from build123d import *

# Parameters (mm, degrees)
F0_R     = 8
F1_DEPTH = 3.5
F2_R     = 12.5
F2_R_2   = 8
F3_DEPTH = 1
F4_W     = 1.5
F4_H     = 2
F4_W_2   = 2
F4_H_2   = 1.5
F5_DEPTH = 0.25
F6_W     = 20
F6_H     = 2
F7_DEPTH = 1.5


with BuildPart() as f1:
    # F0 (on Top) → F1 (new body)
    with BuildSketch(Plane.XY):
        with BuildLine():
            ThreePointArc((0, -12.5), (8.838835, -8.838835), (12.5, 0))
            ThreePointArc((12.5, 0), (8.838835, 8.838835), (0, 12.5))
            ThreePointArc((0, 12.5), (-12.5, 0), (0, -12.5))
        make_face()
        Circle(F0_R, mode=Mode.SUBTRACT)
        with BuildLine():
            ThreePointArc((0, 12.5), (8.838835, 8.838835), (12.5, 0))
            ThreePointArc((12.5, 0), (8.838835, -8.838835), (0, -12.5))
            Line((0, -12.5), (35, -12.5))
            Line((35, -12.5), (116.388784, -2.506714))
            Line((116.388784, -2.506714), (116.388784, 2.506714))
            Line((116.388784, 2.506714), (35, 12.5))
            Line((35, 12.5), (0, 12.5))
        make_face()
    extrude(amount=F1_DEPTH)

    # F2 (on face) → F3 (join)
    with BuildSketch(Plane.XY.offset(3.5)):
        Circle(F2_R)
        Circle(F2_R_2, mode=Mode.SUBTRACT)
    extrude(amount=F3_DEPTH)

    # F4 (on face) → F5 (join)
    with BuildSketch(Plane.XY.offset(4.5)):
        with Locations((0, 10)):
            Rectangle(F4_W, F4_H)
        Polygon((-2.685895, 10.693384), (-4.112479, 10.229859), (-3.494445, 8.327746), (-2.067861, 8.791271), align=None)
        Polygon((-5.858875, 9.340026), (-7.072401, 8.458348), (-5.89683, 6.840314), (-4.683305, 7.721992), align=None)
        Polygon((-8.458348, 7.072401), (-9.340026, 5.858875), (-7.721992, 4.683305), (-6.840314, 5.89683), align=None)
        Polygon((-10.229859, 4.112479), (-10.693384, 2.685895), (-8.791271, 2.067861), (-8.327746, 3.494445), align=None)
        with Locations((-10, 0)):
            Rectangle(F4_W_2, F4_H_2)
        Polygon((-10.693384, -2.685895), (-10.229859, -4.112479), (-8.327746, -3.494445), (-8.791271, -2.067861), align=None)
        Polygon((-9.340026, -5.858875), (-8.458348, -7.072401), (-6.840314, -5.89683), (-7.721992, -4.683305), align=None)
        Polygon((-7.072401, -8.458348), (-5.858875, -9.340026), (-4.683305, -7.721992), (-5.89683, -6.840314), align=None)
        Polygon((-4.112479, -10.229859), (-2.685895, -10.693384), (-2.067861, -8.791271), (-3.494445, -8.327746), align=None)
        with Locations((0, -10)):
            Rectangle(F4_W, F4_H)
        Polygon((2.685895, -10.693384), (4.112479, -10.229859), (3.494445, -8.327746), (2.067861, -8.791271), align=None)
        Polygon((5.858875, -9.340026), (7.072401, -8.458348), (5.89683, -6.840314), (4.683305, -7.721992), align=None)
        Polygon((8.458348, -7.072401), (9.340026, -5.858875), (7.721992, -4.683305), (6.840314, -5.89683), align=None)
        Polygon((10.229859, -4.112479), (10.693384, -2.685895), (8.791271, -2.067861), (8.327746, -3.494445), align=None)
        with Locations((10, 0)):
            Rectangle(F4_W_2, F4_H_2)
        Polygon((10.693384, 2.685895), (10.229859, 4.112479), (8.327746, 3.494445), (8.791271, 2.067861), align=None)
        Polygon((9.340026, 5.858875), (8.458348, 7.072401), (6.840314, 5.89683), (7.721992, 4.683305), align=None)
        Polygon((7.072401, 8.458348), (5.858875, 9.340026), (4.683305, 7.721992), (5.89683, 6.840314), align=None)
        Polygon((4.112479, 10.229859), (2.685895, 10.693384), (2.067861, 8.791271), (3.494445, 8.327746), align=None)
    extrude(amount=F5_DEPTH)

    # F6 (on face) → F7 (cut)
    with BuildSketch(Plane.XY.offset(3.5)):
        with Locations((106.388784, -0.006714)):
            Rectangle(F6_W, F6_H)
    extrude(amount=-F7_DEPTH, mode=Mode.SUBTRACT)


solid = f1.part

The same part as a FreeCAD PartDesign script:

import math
import FreeCAD as App
import Part
import Sketcher
from FreeCAD import Vector
Q = App.Units.Quantity

doc = App.newDocument("Part")
body = doc.addObject("PartDesign::Body", "Body")

# Sketch on XY plane
sketch1 = doc.addObject("Sketcher::SketchObject", "Sketch")
body.addObject(sketch1)
sketch1.AttachmentSupport = (doc.XY_Plane, [""])
sketch1.MapMode = "FlatFace"
sketch1.addGeometry([
    Part.ArcOfCircle(Part.Circle(Vector(0, 0, 0), Vector(0, 0, 1), 12.5), math.radians(90), math.radians(270)),  # 0
    Part.LineSegment(Vector(0, -12.5, 0), Vector(35, -12.5, 0)),  # 1
    Part.LineSegment(Vector(35, -12.5, 0), Vector(116.388784, -2.506714, 0)),  # 2
    Part.LineSegment(Vector(116.388784, -2.506714, 0), Vector(116.388784, 2.506714, 0)),  # 3
    Part.LineSegment(Vector(116.388784, 2.506714, 0), Vector(35, 12.5, 0)),  # 4
    Part.LineSegment(Vector(35, 12.5, 0), Vector(0, 12.5, 0)),  # 5
    Part.Circle(Vector(0, 0, 0), Vector(0, 0, 1), 8),  # 6
], False)
sketch1.addConstraint([
    Sketcher.Constraint("Tangent", 0, 2, 1, 1),
    Sketcher.Constraint("Coincident", 1, 2, 2, 1),
    Sketcher.Constraint("Coincident", 2, 2, 3, 1),
    Sketcher.Constraint("Coincident", 3, 2, 4, 1),
    Sketcher.Constraint("Coincident", 4, 2, 5, 1),
    Sketcher.Constraint("Tangent", 5, 2, 0, 1),
    Sketcher.Constraint("Horizontal", 1),
    Sketcher.Constraint("Vertical", 3),
    Sketcher.Constraint("Horizontal", 5),
    Sketcher.Constraint("Coincident", 0, 3, -1, 1),
    Sketcher.Constraint("Coincident", 6, 3, -1, 1),
    Sketcher.Constraint("Vertical", 1, 2, 4, 2),
    Sketcher.Constraint("Equal", 2, 4),
    Sketcher.Constraint("Diameter", 6, Q("16 mm")),
    Sketcher.Constraint("Radius", 0, Q("12.5 mm")),
    Sketcher.Constraint("DistanceX", 1, 1, 1, 2, Q("35 mm")),
    Sketcher.Constraint("Angle", 2, Q("7 deg")),
    Sketcher.Constraint("Distance", 2, Q("82 mm")),
])
pad1 = doc.addObject("PartDesign::Pad", "Pad")
body.addObject(pad1)
pad1.Profile = sketch1
pad1.Length = 3.5

# Sketch on XY plane
sketch2 = doc.addObject("Sketcher::SketchObject", "Sketch001")
body.addObject(sketch2)
sketch2.AttachmentSupport = (doc.XY_Plane, [""])
sketch2.MapMode = "FlatFace"
sketch2.AttachmentOffset = App.Placement(Vector(0, 0, 3.5), App.Rotation())
sketch2.addGeometry([
    Part.Circle(Vector(0, 0, 0), Vector(0, 0, 1), 12.5),
    Part.Circle(Vector(0, 0, 0), Vector(0, 0, 1), 8),
], False)
sketch2.addConstraint([
    Sketcher.Constraint("Coincident", 0, 3, -1, 1),
    Sketcher.Constraint("Coincident", 1, 3, -1, 1),
    Sketcher.Constraint("Diameter", 0, Q("25 mm")),
    Sketcher.Constraint("Diameter", 1, Q("16 mm")),
])
pad2 = doc.addObject("PartDesign::Pad", "Pad001")
body.addObject(pad2)
pad2.Profile = sketch2
pad2.Length = 1

# Sketch on XY plane
sketch3 = doc.addObject("Sketcher::SketchObject", "Sketch002")
body.addObject(sketch3)
sketch3.AttachmentSupport = (doc.XY_Plane, [""])
sketch3.MapMode = "FlatFace"
sketch3.AttachmentOffset = App.Placement(Vector(0, 0, 4.5), App.Rotation())
sketch3.addGeometry([
    Part.LineSegment(Vector(-0.75, 11, 0), Vector(-0.75, 9, 0)),  # 0
    Part.LineSegment(Vector(-0.75, 9, 0), Vector(0.75, 9, 0)),  # 1
    Part.LineSegment(Vector(0.75, 9, 0), Vector(0.75, 11, 0)),  # 2
    Part.LineSegment(Vector(0.75, 11, 0), Vector(-0.75, 11, 0)),  # 3
    Part.LineSegment(Vector(-2.685895, 10.693384, 0), Vector(-4.112479, 10.229859, 0)),  # 4
    Part.LineSegment(Vector(-4.112479, 10.229859, 0), Vector(-3.494445, 8.327746, 0)),  # 5
    Part.LineSegment(Vector(-3.494445, 8.327746, 0), Vector(-2.067861, 8.791271, 0)),  # 6
    Part.LineSegment(Vector(-2.067861, 8.791271, 0), Vector(-2.685895, 10.693384, 0)),  # 7
    Part.LineSegment(Vector(-5.858875, 9.340026, 0), Vector(-7.072401, 8.458348, 0)),  # 8
    Part.LineSegment(Vector(-7.072401, 8.458348, 0), Vector(-5.89683, 6.840314, 0)),  # 9
    Part.LineSegment(Vector(-5.89683, 6.840314, 0), Vector(-4.683305, 7.721992, 0)),  # 10
    Part.LineSegment(Vector(-4.683305, 7.721992, 0), Vector(-5.858875, 9.340026, 0)),  # 11
    Part.LineSegment(Vector(-8.458348, 7.072401, 0), Vector(-9.340026, 5.858875, 0)),  # 12
    Part.LineSegment(Vector(-9.340026, 5.858875, 0), Vector(-7.721992, 4.683305, 0)),  # 13
    Part.LineSegment(Vector(-7.721992, 4.683305, 0), Vector(-6.840314, 5.89683, 0)),  # 14
    Part.LineSegment(Vector(-6.840314, 5.89683, 0), Vector(-8.458348, 7.072401, 0)),  # 15
    Part.LineSegment(Vector(-10.229859, 4.112479, 0), Vector(-10.693384, 2.685895, 0)),  # 16
    Part.LineSegment(Vector(-10.693384, 2.685895, 0), Vector(-8.791271, 2.067861, 0)),  # 17
    Part.LineSegment(Vector(-8.791271, 2.067861, 0), Vector(-8.327746, 3.494445, 0)),  # 18
    Part.LineSegment(Vector(-8.327746, 3.494445, 0), Vector(-10.229859, 4.112479, 0)),  # 19
    Part.LineSegment(Vector(-11, 0.75, 0), Vector(-11, -0.75, 0)),  # 20
    Part.LineSegment(Vector(-11, -0.75, 0), Vector(-9, -0.75, 0)),  # 21
    Part.LineSegment(Vector(-9, -0.75, 0), Vector(-9, 0.75, 0)),  # 22
    Part.LineSegment(Vector(-9, 0.75, 0), Vector(-11, 0.75, 0)),  # 23
    Part.LineSegment(Vector(-10.693384, -2.685895, 0), Vector(-10.229859, -4.112479, 0)),  # 24
    Part.LineSegment(Vector(-10.229859, -4.112479, 0), Vector(-8.327746, -3.494445, 0)),  # 25
    Part.LineSegment(Vector(-8.327746, -3.494445, 0), Vector(-8.791271, -2.067861, 0)),  # 26
    Part.LineSegment(Vector(-8.791271, -2.067861, 0), Vector(-10.693384, -2.685895, 0)),  # 27
    Part.LineSegment(Vector(-9.340026, -5.858875, 0), Vector(-8.458348, -7.072401, 0)),  # 28
    Part.LineSegment(Vector(-8.458348, -7.072401, 0), Vector(-6.840314, -5.89683, 0)),  # 29
    Part.LineSegment(Vector(-6.840314, -5.89683, 0), Vector(-7.721992, -4.683305, 0)),  # 30
    Part.LineSegment(Vector(-7.721992, -4.683305, 0), Vector(-9.340026, -5.858875, 0)),  # 31
    Part.LineSegment(Vector(-7.072401, -8.458348, 0), Vector(-5.858875, -9.340026, 0)),  # 32
    Part.LineSegment(Vector(-5.858875, -9.340026, 0), Vector(-4.683305, -7.721992, 0)),  # 33
    Part.LineSegment(Vector(-4.683305, -7.721992, 0), Vector(-5.89683, -6.840314, 0)),  # 34
    Part.LineSegment(Vector(-5.89683, -6.840314, 0), Vector(-7.072401, -8.458348, 0)),  # 35
    Part.LineSegment(Vector(-4.112479, -10.229859, 0), Vector(-2.685895, -10.693384, 0)),  # 36
    Part.LineSegment(Vector(-2.685895, -10.693384, 0), Vector(-2.067861, -8.791271, 0)),  # 37
    Part.LineSegment(Vector(-2.067861, -8.791271, 0), Vector(-3.494445, -8.327746, 0)),  # 38
    Part.LineSegment(Vector(-3.494445, -8.327746, 0), Vector(-4.112479, -10.229859, 0)),  # 39
    Part.LineSegment(Vector(-0.75, -9, 0), Vector(-0.75, -11, 0)),  # 40
    Part.LineSegment(Vector(-0.75, -11, 0), Vector(0.75, -11, 0)),  # 41
    Part.LineSegment(Vector(0.75, -11, 0), Vector(0.75, -9, 0)),  # 42
    Part.LineSegment(Vector(0.75, -9, 0), Vector(-0.75, -9, 0)),  # 43
    Part.LineSegment(Vector(2.685895, -10.693384, 0), Vector(4.112479, -10.229859, 0)),  # 44
    Part.LineSegment(Vector(4.112479, -10.229859, 0), Vector(3.494445, -8.327746, 0)),  # 45
    Part.LineSegment(Vector(3.494445, -8.327746, 0), Vector(2.067861, -8.791271, 0)),  # 46
    Part.LineSegment(Vector(2.067861, -8.791271, 0), Vector(2.685895, -10.693384, 0)),  # 47
    Part.LineSegment(Vector(5.858875, -9.340026, 0), Vector(7.072401, -8.458348, 0)),  # 48
    Part.LineSegment(Vector(7.072401, -8.458348, 0), Vector(5.89683, -6.840314, 0)),  # 49
    Part.LineSegment(Vector(5.89683, -6.840314, 0), Vector(4.683305, -7.721992, 0)),  # 50
    Part.LineSegment(Vector(4.683305, -7.721992, 0), Vector(5.858875, -9.340026, 0)),  # 51
    Part.LineSegment(Vector(8.458348, -7.072401, 0), Vector(9.340026, -5.858875, 0)),  # 52
    Part.LineSegment(Vector(9.340026, -5.858875, 0), Vector(7.721992, -4.683305, 0)),  # 53
    Part.LineSegment(Vector(7.721992, -4.683305, 0), Vector(6.840314, -5.89683, 0)),  # 54
    Part.LineSegment(Vector(6.840314, -5.89683, 0), Vector(8.458348, -7.072401, 0)),  # 55
    Part.LineSegment(Vector(10.229859, -4.112479, 0), Vector(10.693384, -2.685895, 0)),  # 56
    Part.LineSegment(Vector(10.693384, -2.685895, 0), Vector(8.791271, -2.067861, 0)),  # 57
    Part.LineSegment(Vector(8.791271, -2.067861, 0), Vector(8.327746, -3.494445, 0)),  # 58
    Part.LineSegment(Vector(8.327746, -3.494445, 0), Vector(10.229859, -4.112479, 0)),  # 59
    Part.LineSegment(Vector(9, 0.75, 0), Vector(9, -0.75, 0)),  # 60
    Part.LineSegment(Vector(9, -0.75, 0), Vector(11, -0.75, 0)),  # 61
    Part.LineSegment(Vector(11, -0.75, 0), Vector(11, 0.75, 0)),  # 62
    Part.LineSegment(Vector(11, 0.75, 0), Vector(9, 0.75, 0)),  # 63
    Part.LineSegment(Vector(10.693384, 2.685895, 0), Vector(10.229859, 4.112479, 0)),  # 64
    Part.LineSegment(Vector(10.229859, 4.112479, 0), Vector(8.327746, 3.494445, 0)),  # 65
    Part.LineSegment(Vector(8.327746, 3.494445, 0), Vector(8.791271, 2.067861, 0)),  # 66
    Part.LineSegment(Vector(8.791271, 2.067861, 0), Vector(10.693384, 2.685895, 0)),  # 67
    Part.LineSegment(Vector(9.340026, 5.858875, 0), Vector(8.458348, 7.072401, 0)),  # 68
    Part.LineSegment(Vector(8.458348, 7.072401, 0), Vector(6.840314, 5.89683, 0)),  # 69
    Part.LineSegment(Vector(6.840314, 5.89683, 0), Vector(7.721992, 4.683305, 0)),  # 70
    Part.LineSegment(Vector(7.721992, 4.683305, 0), Vector(9.340026, 5.858875, 0)),  # 71
    Part.LineSegment(Vector(7.072401, 8.458348, 0), Vector(5.858875, 9.340026, 0)),  # 72
    Part.LineSegment(Vector(5.858875, 9.340026, 0), Vector(4.683305, 7.721992, 0)),  # 73
    Part.LineSegment(Vector(4.683305, 7.721992, 0), Vector(5.89683, 6.840314, 0)),  # 74
    Part.LineSegment(Vector(5.89683, 6.840314, 0), Vector(7.072401, 8.458348, 0)),  # 75
    Part.LineSegment(Vector(4.112479, 10.229859, 0), Vector(2.685895, 10.693384, 0)),  # 76
    Part.LineSegment(Vector(2.685895, 10.693384, 0), Vector(2.067861, 8.791271, 0)),  # 77
    Part.LineSegment(Vector(2.067861, 8.791271, 0), Vector(3.494445, 8.327746, 0)),  # 78
    Part.LineSegment(Vector(3.494445, 8.327746, 0), Vector(4.112479, 10.229859, 0)),  # 79
], False)
sketch3.addConstraint([
    Sketcher.Constraint("Coincident", 0, 2, 1, 1),
    Sketcher.Constraint("Coincident", 1, 2, 2, 1),
    Sketcher.Constraint("Coincident", 2, 2, 3, 1),
    Sketcher.Constraint("Coincident", 3, 2, 0, 1),
    Sketcher.Constraint("Coincident", 4, 2, 5, 1),
    Sketcher.Constraint("Coincident", 5, 2, 6, 1),
    Sketcher.Constraint("Coincident", 6, 2, 7, 1),
    Sketcher.Constraint("Coincident", 7, 2, 4, 1),
    Sketcher.Constraint("Coincident", 8, 2, 9, 1),
    Sketcher.Constraint("Coincident", 9, 2, 10, 1),
    Sketcher.Constraint("Coincident", 10, 2, 11, 1),
    Sketcher.Constraint("Coincident", 11, 2, 8, 1),
    Sketcher.Constraint("Coincident", 12, 2, 13, 1),
    Sketcher.Constraint("Coincident", 13, 2, 14, 1),
    Sketcher.Constraint("Coincident", 14, 2, 15, 1),
    Sketcher.Constraint("Coincident", 15, 2, 12, 1),
    Sketcher.Constraint("Coincident", 16, 2, 17, 1),
    Sketcher.Constraint("Coincident", 17, 2, 18, 1),
    Sketcher.Constraint("Coincident", 18, 2, 19, 1),
    Sketcher.Constraint("Coincident", 19, 2, 16, 1),
    Sketcher.Constraint("Coincident", 20, 2, 21, 1),
    Sketcher.Constraint("Coincident", 21, 2, 22, 1),
    Sketcher.Constraint("Coincident", 22, 2, 23, 1),
    Sketcher.Constraint("Coincident", 23, 2, 20, 1),
    Sketcher.Constraint("Coincident", 24, 2, 25, 1),
    Sketcher.Constraint("Coincident", 25, 2, 26, 1),
    Sketcher.Constraint("Coincident", 26, 2, 27, 1),
    Sketcher.Constraint("Coincident", 27, 2, 24, 1),
    Sketcher.Constraint("Coincident", 28, 2, 29, 1),
    Sketcher.Constraint("Coincident", 29, 2, 30, 1),
    Sketcher.Constraint("Coincident", 30, 2, 31, 1),
    Sketcher.Constraint("Coincident", 31, 2, 28, 1),
    Sketcher.Constraint("Coincident", 32, 2, 33, 1),
    Sketcher.Constraint("Coincident", 33, 2, 34, 1),
    Sketcher.Constraint("Coincident", 34, 2, 35, 1),
    Sketcher.Constraint("Coincident", 35, 2, 32, 1),
    Sketcher.Constraint("Coincident", 36, 2, 37, 1),
    Sketcher.Constraint("Coincident", 37, 2, 38, 1),
    Sketcher.Constraint("Coincident", 38, 2, 39, 1),
    Sketcher.Constraint("Coincident", 39, 2, 36, 1),
    Sketcher.Constraint("Coincident", 40, 2, 41, 1),
    Sketcher.Constraint("Coincident", 41, 2, 42, 1),
    Sketcher.Constraint("Coincident", 42, 2, 43, 1),
    Sketcher.Constraint("Coincident", 43, 2, 40, 1),
    Sketcher.Constraint("Coincident", 44, 2, 45, 1),
    Sketcher.Constraint("Coincident", 45, 2, 46, 1),
    Sketcher.Constraint("Coincident", 46, 2, 47, 1),
    Sketcher.Constraint("Coincident", 47, 2, 44, 1),
    Sketcher.Constraint("Coincident", 48, 2, 49, 1),
    Sketcher.Constraint("Coincident", 49, 2, 50, 1),
    Sketcher.Constraint("Coincident", 50, 2, 51, 1),
    Sketcher.Constraint("Coincident", 51, 2, 48, 1),
    Sketcher.Constraint("Coincident", 52, 2, 53, 1),
    Sketcher.Constraint("Coincident", 53, 2, 54, 1),
    Sketcher.Constraint("Coincident", 54, 2, 55, 1),
    Sketcher.Constraint("Coincident", 55, 2, 52, 1),
    Sketcher.Constraint("Coincident", 56, 2, 57, 1),
    Sketcher.Constraint("Coincident", 57, 2, 58, 1),
    Sketcher.Constraint("Coincident", 58, 2, 59, 1),
    Sketcher.Constraint("Coincident", 59, 2, 56, 1),
    Sketcher.Constraint("Coincident", 60, 2, 61, 1),
    Sketcher.Constraint("Coincident", 61, 2, 62, 1),
    Sketcher.Constraint("Coincident", 62, 2, 63, 1),
    Sketcher.Constraint("Coincident", 63, 2, 60, 1),
    Sketcher.Constraint("Coincident", 64, 2, 65, 1),
    Sketcher.Constraint("Coincident", 65, 2, 66, 1),
    Sketcher.Constraint("Coincident", 66, 2, 67, 1),
    Sketcher.Constraint("Coincident", 67, 2, 64, 1),
    Sketcher.Constraint("Coincident", 68, 2, 69, 1),
    Sketcher.Constraint("Coincident", 69, 2, 70, 1),
    Sketcher.Constraint("Coincident", 70, 2, 71, 1),
    Sketcher.Constraint("Coincident", 71, 2, 68, 1),
    Sketcher.Constraint("Coincident", 72, 2, 73, 1),
    Sketcher.Constraint("Coincident", 73, 2, 74, 1),
    Sketcher.Constraint("Coincident", 74, 2, 75, 1),
    Sketcher.Constraint("Coincident", 75, 2, 72, 1),
    Sketcher.Constraint("Coincident", 76, 2, 77, 1),
    Sketcher.Constraint("Coincident", 77, 2, 78, 1),
    Sketcher.Constraint("Coincident", 78, 2, 79, 1),
    Sketcher.Constraint("Coincident", 79, 2, 76, 1),
    Sketcher.Constraint("Vertical", 0),
    Sketcher.Constraint("Horizontal", 1),
    Sketcher.Constraint("Vertical", 2),
    Sketcher.Constraint("Horizontal", 3),
    Sketcher.Constraint("Vertical", 20),
    Sketcher.Constraint("Horizontal", 21),
    Sketcher.Constraint("Vertical", 22),
    Sketcher.Constraint("Horizontal", 23),
    Sketcher.Constraint("Vertical", 40),
    Sketcher.Constraint("Horizontal", 41),
    Sketcher.Constraint("Vertical", 42),
    Sketcher.Constraint("Horizontal", 43),
    Sketcher.Constraint("Vertical", 60),
    Sketcher.Constraint("Horizontal", 61),
    Sketcher.Constraint("Vertical", 62),
    Sketcher.Constraint("Horizontal", 63),
    Sketcher.Constraint("Symmetric", 2, 2, 40, 2, -1, 1),
    Sketcher.Constraint("Symmetric", 0, 2, 42, 2, -1, 1),
    Sketcher.Constraint("Symmetric", 4, 2, 44, 2, -1, 1),
    Sketcher.Constraint("Symmetric", 5, 2, 45, 2, -1, 1),
    Sketcher.Constraint("Symmetric", 6, 2, 46, 2, -1, 1),
    Sketcher.Constraint("Symmetric", 7, 2, 47, 2, -1, 1),
    Sketcher.Constraint("Symmetric", 8, 2, 48, 2, -1, 1),
    Sketcher.Constraint("Symmetric", 9, 2, 49, 2, -1, 1),
    Sketcher.Constraint("Symmetric", 10, 2, 50, 2, -1, 1),
    Sketcher.Constraint("Symmetric", 11, 2, 51, 2, -1, 1),
    Sketcher.Constraint("Symmetric", 12, 2, 52, 2, -1, 1),
    Sketcher.Constraint("Symmetric", 13, 2, 53, 2, -1, 1),
    Sketcher.Constraint("Symmetric", 14, 2, 54, 2, -1, 1),
    Sketcher.Constraint("Symmetric", 15, 2, 55, 2, -1, 1),
    Sketcher.Constraint("Symmetric", 16, 2, 56, 2, -1, 1),
    Sketcher.Constraint("Symmetric", 17, 2, 57, 2, -1, 1),
    Sketcher.Constraint("Symmetric", 18, 2, 58, 2, -1, 1),
    Sketcher.Constraint("Symmetric", 19, 2, 59, 2, -1, 1),
    Sketcher.Constraint("Symmetric", 22, 2, 60, 2, -1, 1),
    Sketcher.Constraint("Symmetric", 20, 2, 62, 2, -1, 1),
    Sketcher.Constraint("Symmetric", 24, 2, 64, 2, -1, 1),
    Sketcher.Constraint("Symmetric", 25, 2, 65, 2, -1, 1),
    Sketcher.Constraint("Symmetric", 26, 2, 66, 2, -1, 1),
    Sketcher.Constraint("Symmetric", 27, 2, 67, 2, -1, 1),
    Sketcher.Constraint("Symmetric", 28, 2, 68, 2, -1, 1),
    Sketcher.Constraint("Symmetric", 29, 2, 69, 2, -1, 1),
    Sketcher.Constraint("Symmetric", 30, 2, 70, 2, -1, 1),
    Sketcher.Constraint("Symmetric", 31, 2, 71, 2, -1, 1),
    Sketcher.Constraint("Symmetric", 32, 2, 72, 2, -1, 1),
    Sketcher.Constraint("Symmetric", 33, 2, 73, 2, -1, 1),
    Sketcher.Constraint("Symmetric", 34, 2, 74, 2, -1, 1),
    Sketcher.Constraint("Symmetric", 35, 2, 75, 2, -1, 1),
    Sketcher.Constraint("Symmetric", 36, 2, 76, 2, -1, 1),
    Sketcher.Constraint("Symmetric", 37, 2, 77, 2, -1, 1),
    Sketcher.Constraint("Symmetric", 38, 2, 78, 2, -1, 1),
    Sketcher.Constraint("Symmetric", 39, 2, 79, 2, -1, 1),
    Sketcher.Constraint("Symmetric", 39, 2, 44, 2, -2),
    Sketcher.Constraint("Symmetric", 38, 2, 45, 2, -2),
    Sketcher.Constraint("Symmetric", 37, 2, 46, 2, -2),
    Sketcher.Constraint("Symmetric", 36, 2, 47, 2, -2),
    Sketcher.Constraint("Symmetric", 35, 2, 48, 2, -2),
    Sketcher.Constraint("Symmetric", 34, 2, 49, 2, -2),
    Sketcher.Constraint("Symmetric", 33, 2, 50, 2, -2),
    Sketcher.Constraint("Symmetric", 32, 2, 51, 2, -2),
    Sketcher.Constraint("Symmetric", 31, 2, 52, 2, -2),
    Sketcher.Constraint("Symmetric", 30, 2, 53, 2, -2),
    Sketcher.Constraint("Symmetric", 29, 2, 54, 2, -2),
    Sketcher.Constraint("Symmetric", 28, 2, 55, 2, -2),
    Sketcher.Constraint("Symmetric", 27, 2, 56, 2, -2),
    Sketcher.Constraint("Symmetric", 26, 2, 57, 2, -2),
    Sketcher.Constraint("Symmetric", 25, 2, 58, 2, -2),
    Sketcher.Constraint("Symmetric", 24, 2, 59, 2, -2),
    Sketcher.Constraint("Perpendicular", 4, 5),
    Sketcher.Constraint("Perpendicular", 5, 6),
    Sketcher.Constraint("Perpendicular", 6, 7),
    Sketcher.Constraint("Perpendicular", 8, 9),
    Sketcher.Constraint("Perpendicular", 9, 10),
    Sketcher.Constraint("Perpendicular", 10, 11),
    Sketcher.Constraint("Perpendicular", 12, 13),
    Sketcher.Constraint("Perpendicular", 13, 14),
    Sketcher.Constraint("Perpendicular", 14, 15),
    Sketcher.Constraint("Perpendicular", 16, 17),
    Sketcher.Constraint("Perpendicular", 17, 18),
    Sketcher.Constraint("Perpendicular", 18, 19),
    Sketcher.Constraint("Parallel", 7, 24),
    Sketcher.Constraint("Parallel", 11, 28),
    Sketcher.Constraint("Horizontal", 21, 2, 60, 2),
    Sketcher.Constraint("Vertical", 3, 2, 40, 2),
    Sketcher.Constraint("Equal", 63, 0),
    Sketcher.Constraint("Equal", 43, 20),
    Sketcher.Constraint("Equal", 6, 8),
    Sketcher.Constraint("Equal", 7, 9),
    Sketcher.Constraint("Equal", 10, 12),
    Sketcher.Constraint("Equal", 11, 13),
    Sketcher.Constraint("Equal", 14, 16),
    Sketcher.Constraint("Equal", 15, 17),
    Sketcher.Constraint("DistanceX", 21, 1, 21, 2, Q("2 mm")),
    Sketcher.Constraint("Angle", 4, Q("-162.000009 deg")),
    Sketcher.Constraint("Angle", 8, Q("-144.000008 deg")),
    Sketcher.Constraint("Distance", 5, Q("2 mm")),
    Sketcher.Constraint("DistanceX", 1, 1, 1, 2, Q("1.5 mm")),
    Sketcher.Constraint("DistanceY", -1, 1, 0, 2, Q("9 mm")),
    Sketcher.Constraint("DistanceX", 20, 2, -1, 1, Q("11 mm")),
    Sketcher.Constraint("Distance", 4, Q("1.499999 mm")),
    Sketcher.Constraint("DistanceX", 8, 2, -1, 1, Q("7.072401 mm")),
    Sketcher.Constraint("DistanceY", -1, 1, 15, 2, Q("7.072401 mm")),
    Sketcher.Constraint("DistanceX", 4, 2, -1, 1, Q("4.112479 mm")),
    Sketcher.Constraint("DistanceY", -1, 1, 4, 2, Q("10.229859 mm")),
    Sketcher.Constraint("DistanceY", -1, 1, 8, 2, Q("8.458348 mm")),
    Sketcher.Constraint("DistanceX", 15, 2, -1, 1, Q("8.458348 mm")),
    Sketcher.Constraint("DistanceX", 17, 2, -1, 1, Q("8.791271 mm")),
    Sketcher.Constraint("DistanceY", -1, 1, 17, 2, Q("2.067861 mm")),
])
pad3 = doc.addObject("PartDesign::Pad", "Pad002")
body.addObject(pad3)
pad3.Profile = sketch3
pad3.Length = 0.25

# Sketch on XY plane
sketch4 = doc.addObject("Sketcher::SketchObject", "Sketch003")
body.addObject(sketch4)
sketch4.AttachmentSupport = (doc.XY_Plane, [""])
sketch4.MapMode = "FlatFace"
sketch4.AttachmentOffset = App.Placement(Vector(0, 0, 3.5), App.Rotation())
sketch4.addGeometry([
    Part.LineSegment(Vector(96.388784, 0.993286, 0), Vector(96.388784, -1.006714, 0)),
    Part.LineSegment(Vector(96.388784, -1.006714, 0), Vector(116.388784, -1.006714, 0)),
    Part.LineSegment(Vector(116.388784, -1.006714, 0), Vector(116.388784, 0.993286, 0)),
    Part.LineSegment(Vector(116.388784, 0.993286, 0), Vector(96.388784, 0.993286, 0)),
], False)
sketch4.addConstraint([
    Sketcher.Constraint("Coincident", 0, 2, 1, 1),
    Sketcher.Constraint("Coincident", 1, 2, 2, 1),
    Sketcher.Constraint("Coincident", 2, 2, 3, 1),
    Sketcher.Constraint("Coincident", 3, 2, 0, 1),
    Sketcher.Constraint("Vertical", 0),
    Sketcher.Constraint("Horizontal", 1),
    Sketcher.Constraint("Vertical", 2),
    Sketcher.Constraint("Horizontal", 3),
    Sketcher.Constraint("DistanceX", 1, 1, 1, 2, Q("20 mm")),
    Sketcher.Constraint("DistanceY", 0, 2, 0, 1, Q("2 mm")),
    Sketcher.Constraint("DistanceX", -1, 1, 0, 2, Q("96.388784 mm")),
    Sketcher.Constraint("DistanceY", 0, 2, -1, 1, Q("1.006714 mm")),
])
pocket1 = doc.addObject("PartDesign::Pocket", "Pocket")
body.addObject(pocket1)
pocket1.Profile = sketch4
pocket1.Length = 1.5

doc.recompute()
